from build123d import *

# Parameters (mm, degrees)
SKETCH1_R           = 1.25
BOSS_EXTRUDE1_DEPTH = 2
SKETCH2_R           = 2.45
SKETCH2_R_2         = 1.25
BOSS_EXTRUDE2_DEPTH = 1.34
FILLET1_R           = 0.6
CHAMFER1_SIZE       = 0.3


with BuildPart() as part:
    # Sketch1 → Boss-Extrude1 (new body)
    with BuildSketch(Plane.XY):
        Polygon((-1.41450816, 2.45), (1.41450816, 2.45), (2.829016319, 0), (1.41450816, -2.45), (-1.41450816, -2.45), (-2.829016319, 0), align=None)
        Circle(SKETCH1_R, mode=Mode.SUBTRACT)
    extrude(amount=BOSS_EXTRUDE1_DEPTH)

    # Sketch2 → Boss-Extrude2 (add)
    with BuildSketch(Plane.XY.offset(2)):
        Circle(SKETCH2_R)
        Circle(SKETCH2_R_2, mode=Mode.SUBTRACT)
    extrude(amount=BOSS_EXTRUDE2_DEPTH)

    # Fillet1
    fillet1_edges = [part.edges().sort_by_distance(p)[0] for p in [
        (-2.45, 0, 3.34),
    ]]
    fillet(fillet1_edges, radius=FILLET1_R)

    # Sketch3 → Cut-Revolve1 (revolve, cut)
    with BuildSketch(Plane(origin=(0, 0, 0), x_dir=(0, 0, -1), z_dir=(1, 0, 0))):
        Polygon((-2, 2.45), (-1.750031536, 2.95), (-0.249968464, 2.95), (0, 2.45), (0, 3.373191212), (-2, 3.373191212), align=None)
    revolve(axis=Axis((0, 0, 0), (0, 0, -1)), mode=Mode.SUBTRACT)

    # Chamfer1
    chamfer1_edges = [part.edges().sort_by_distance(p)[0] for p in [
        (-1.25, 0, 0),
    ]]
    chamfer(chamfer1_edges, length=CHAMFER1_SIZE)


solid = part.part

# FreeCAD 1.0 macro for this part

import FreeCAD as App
import Part
import Sketcher
from FreeCAD import Vector
Q = App.Units.Quantity


def edges_at(feature, points):
    """Names of the edges that pass closest to the given points."""
    edges = feature.Shape.Edges
    near = lambda p: min(range(len(edges)), key=lambda i: edges[i].distToShape(Part.Vertex(*p))[0])
    return sorted({f"Edge{near(p) + 1}" for p in points})

doc = App.newDocument("Part")
body = doc.addObject("PartDesign::Body", "Body")

sketch1 = doc.addObject("Sketcher::SketchObject", "Sketch")
body.addObject(sketch1)
sketch1.AttachmentSupport = (doc.XY_Plane, [""])
sketch1.MapMode = "FlatFace"
sketch1.addGeometry(Part.LineSegment(Vector(1.4, 2.5, 0), Vector(-1.4, 2.5, 0)), False)
sketch1.addGeometry(Part.LineSegment(Vector(-1.4, 2.5, 0), Vector(-2.8, 0, 0)), False)
sketch1.addGeometry(Part.LineSegment(Vector(-2.8, 0, 0), Vector(-1.4, -2.5, 0)), False)
sketch1.addGeometry(Part.LineSegment(Vector(-1.4, -2.5, 0), Vector(1.4, -2.5, 0)), False)
sketch1.addGeometry(Part.LineSegment(Vector(1.4, -2.5, 0), Vector(2.8, 0, 0)), False)
sketch1.addGeometry(Part.LineSegment(Vector(2.8, 0, 0), Vector(1.4, 2.5, 0)), False)
sketch1.addGeometry(Part.Circle(Vector(0, 0, 0), Vector(0, 0, 1), 1.2), False)
sketch1.addConstraint(Sketcher.Constraint("Coincident", 0, 2, 1, 1))
sketch1.addConstraint(Sketcher.Constraint("Coincident", 1, 2, 2, 1))
sketch1.addConstraint(Sketcher.Constraint("Coincident", 2, 2, 3, 1))
sketch1.addConstraint(Sketcher.Constraint("Coincident", 3, 2, 4, 1))
sketch1.addConstraint(Sketcher.Constraint("Coincident", 4, 2, 5, 1))
sketch1.addConstraint(Sketcher.Constraint("Coincident", 5, 2, 0, 1))
sketch1.addConstraint(Sketcher.Constraint("Horizontal", 0))
sketch1.addConstraint(Sketcher.Constraint("Horizontal", 3))
sketch1.addConstraint(Sketcher.Constraint("Coincident", 6, 3, -1, 1))
sketch1.addConstraint(Sketcher.Constraint("Symmetric", 0, 2, 3, 2, -1, 1))
sketch1.addConstraint(Sketcher.Constraint("Symmetric", 1, 2, 4, 2, -1, 1))
sketch1.addConstraint(Sketcher.Constraint("PointOnObject", 1, 2, -1))
sketch1.addConstraint(Sketcher.Constraint("Parallel", 2, 5))
sketch1.addConstraint(Sketcher.Constraint("Vertical", 0, 2, 2, 2))
sketch1.addConstraint(Sketcher.Constraint("Diameter", 6, 2.5))
sketch1.addConstraint(Sketcher.Constraint("Angle", 1, Q("-120 deg")))
sketch1.addConstraint(Sketcher.Constraint("DistanceY", 2, 2, 0, 2, 4.9))
sketch1.addConstraint(Sketcher.Constraint("DistanceX", 0, 2, 0, 1, 2.829016))
pad1 = doc.addObject("PartDesign::Pad", "Pad")
body.addObject(pad1)
pad1.Profile = sketch1
pad1.Length = 2

sketch2 = doc.addObject("Sketcher::SketchObject", "Sketch001")
body.addObject(sketch2)
sketch2.AttachmentSupport = (doc.XY_Plane, [""])
sketch2.MapMode = "FlatFace"
sketch2.AttachmentOffset = App.Placement(Vector(0, 0, 2), App.Rotation())
sketch2.addGeometry(Part.Circle(Vector(0, 0, 0), Vector(0, 0, 1), 2.5), False)
sketch2.addGeometry(Part.Circle(Vector(0, 0, 0), Vector(0, 0, 1), 1.2), False)
sketch2.addConstraint(Sketcher.Constraint("Coincident", 0, 3, -1, 1))
sketch2.addConstraint(Sketcher.Constraint("Coincident", 1, 3, -1, 1))
sketch2.addConstraint(Sketcher.Constraint("Diameter", 0, 4.9))
sketch2.addConstraint(Sketcher.Constraint("Diameter", 1, 2.5))
pad2 = doc.addObject("PartDesign::Pad", "Pad001")
body.addObject(pad2)
pad2.Profile = sketch2
pad2.Length = 1.34
doc.recompute()

fillet = doc.addObject("PartDesign::Fillet", "Fillet")
body.addObject(fillet)
fillet.Base = (pad2, edges_at(pad2, [(-2.45, 0, 3.34)]))
fillet.Radius = 0.6

sketch3 = doc.addObject("Sketcher::SketchObject", "Sketch002")
body.addObject(sketch3)
sketch3.AttachmentSupport = (doc.YZ_Plane, [""])
sketch3.MapMode = "FlatFace"
sketch3.addGeometry(Part.LineSegment(Vector(2.5, 2, 0), Vector(3, 1.8, 0)), False)
sketch3.addGeometry(Part.LineSegment(Vector(3, 1.8, 0), Vector(3, 0.2, 0)), False)
sketch3.addGeometry(Part.LineSegment(Vector(3, 0.2, 0), Vector(2.5, 0, 0)), False)
sketch3.addGeometry(Part.LineSegment(Vector(2.5, 0, 0), Vector(3.4, 0, 0)), False)
sketch3.addGeometry(Part.LineSegment(Vector(3.4, 0, 0), Vector(3.4, 2, 0)), False)
sketch3.addGeometry(Part.LineSegment(Vector(3.4, 2, 0), Vector(2.5, 2, 0)), False)
sketch3.addConstraint(Sketcher.Constraint("Coincident", 0, 2, 1, 1))
sketch3.addConstraint(Sketcher.Constraint("Coincident", 1, 2, 2, 1))
sketch3.addConstraint(Sketcher.Constraint("Coincident", 2, 2, 3, 1))
sketch3.addConstraint(Sketcher.Constraint("Coincident", 3, 2, 4, 1))
sketch3.addConstraint(Sketcher.Constraint("Coincident", 4, 2, 5, 1))
sketch3.addConstraint(Sketcher.Constraint("Coincident", 5, 2, 0, 1))
sketch3.addConstraint(Sketcher.Constraint("Vertical", 1))
sketch3.addConstraint(Sketcher.Constraint("Horizontal", 3))
sketch3.addConstraint(Sketcher.Constraint("Vertical", 4))
sketch3.addConstraint(Sketcher.Constraint("Horizontal", 5))
sketch3.addConstraint(Sketcher.Constraint("PointOnObject", 2, 2, -1))
sketch3.addConstraint(Sketcher.Constraint("Vertical", 2, 2, 5, 2))
sketch3.addConstraint(Sketcher.Constraint("Equal", 0, 2))
sketch3.addConstraint(Sketcher.Constraint("DistanceY", 4, 1, 4, 2, 2.0))
sketch3.addConstraint(Sketcher.Constraint("DistanceX", 2, 2, 1, 2, 0.5))
sketch3.addConstraint(Sketcher.Constraint("DistanceX", -1, 1, 0, 2, 2.95))
sketch3.addConstraint(Sketcher.Constraint("DistanceX", 3, 1, 3, 2, 0.923191))
sketch3.addConstraint(Sketcher.Constraint("DistanceY", 1, 2, 1, 1, 1.500063))
groove = doc.addObject("PartDesign::Groove", "Groove")
body.addObject(groove)
groove.Profile = sketch3
groove.ReferenceAxis = (sketch3, ["V_Axis"])
groove.Angle = 360
doc.recompute()

chamfer = doc.addObject("PartDesign::Chamfer", "Chamfer")
body.addObject(chamfer)
chamfer.Base = (groove, edges_at(groove, [(-1.25, 0, 0)]))
chamfer.Size = 0.3

doc.recompute()
